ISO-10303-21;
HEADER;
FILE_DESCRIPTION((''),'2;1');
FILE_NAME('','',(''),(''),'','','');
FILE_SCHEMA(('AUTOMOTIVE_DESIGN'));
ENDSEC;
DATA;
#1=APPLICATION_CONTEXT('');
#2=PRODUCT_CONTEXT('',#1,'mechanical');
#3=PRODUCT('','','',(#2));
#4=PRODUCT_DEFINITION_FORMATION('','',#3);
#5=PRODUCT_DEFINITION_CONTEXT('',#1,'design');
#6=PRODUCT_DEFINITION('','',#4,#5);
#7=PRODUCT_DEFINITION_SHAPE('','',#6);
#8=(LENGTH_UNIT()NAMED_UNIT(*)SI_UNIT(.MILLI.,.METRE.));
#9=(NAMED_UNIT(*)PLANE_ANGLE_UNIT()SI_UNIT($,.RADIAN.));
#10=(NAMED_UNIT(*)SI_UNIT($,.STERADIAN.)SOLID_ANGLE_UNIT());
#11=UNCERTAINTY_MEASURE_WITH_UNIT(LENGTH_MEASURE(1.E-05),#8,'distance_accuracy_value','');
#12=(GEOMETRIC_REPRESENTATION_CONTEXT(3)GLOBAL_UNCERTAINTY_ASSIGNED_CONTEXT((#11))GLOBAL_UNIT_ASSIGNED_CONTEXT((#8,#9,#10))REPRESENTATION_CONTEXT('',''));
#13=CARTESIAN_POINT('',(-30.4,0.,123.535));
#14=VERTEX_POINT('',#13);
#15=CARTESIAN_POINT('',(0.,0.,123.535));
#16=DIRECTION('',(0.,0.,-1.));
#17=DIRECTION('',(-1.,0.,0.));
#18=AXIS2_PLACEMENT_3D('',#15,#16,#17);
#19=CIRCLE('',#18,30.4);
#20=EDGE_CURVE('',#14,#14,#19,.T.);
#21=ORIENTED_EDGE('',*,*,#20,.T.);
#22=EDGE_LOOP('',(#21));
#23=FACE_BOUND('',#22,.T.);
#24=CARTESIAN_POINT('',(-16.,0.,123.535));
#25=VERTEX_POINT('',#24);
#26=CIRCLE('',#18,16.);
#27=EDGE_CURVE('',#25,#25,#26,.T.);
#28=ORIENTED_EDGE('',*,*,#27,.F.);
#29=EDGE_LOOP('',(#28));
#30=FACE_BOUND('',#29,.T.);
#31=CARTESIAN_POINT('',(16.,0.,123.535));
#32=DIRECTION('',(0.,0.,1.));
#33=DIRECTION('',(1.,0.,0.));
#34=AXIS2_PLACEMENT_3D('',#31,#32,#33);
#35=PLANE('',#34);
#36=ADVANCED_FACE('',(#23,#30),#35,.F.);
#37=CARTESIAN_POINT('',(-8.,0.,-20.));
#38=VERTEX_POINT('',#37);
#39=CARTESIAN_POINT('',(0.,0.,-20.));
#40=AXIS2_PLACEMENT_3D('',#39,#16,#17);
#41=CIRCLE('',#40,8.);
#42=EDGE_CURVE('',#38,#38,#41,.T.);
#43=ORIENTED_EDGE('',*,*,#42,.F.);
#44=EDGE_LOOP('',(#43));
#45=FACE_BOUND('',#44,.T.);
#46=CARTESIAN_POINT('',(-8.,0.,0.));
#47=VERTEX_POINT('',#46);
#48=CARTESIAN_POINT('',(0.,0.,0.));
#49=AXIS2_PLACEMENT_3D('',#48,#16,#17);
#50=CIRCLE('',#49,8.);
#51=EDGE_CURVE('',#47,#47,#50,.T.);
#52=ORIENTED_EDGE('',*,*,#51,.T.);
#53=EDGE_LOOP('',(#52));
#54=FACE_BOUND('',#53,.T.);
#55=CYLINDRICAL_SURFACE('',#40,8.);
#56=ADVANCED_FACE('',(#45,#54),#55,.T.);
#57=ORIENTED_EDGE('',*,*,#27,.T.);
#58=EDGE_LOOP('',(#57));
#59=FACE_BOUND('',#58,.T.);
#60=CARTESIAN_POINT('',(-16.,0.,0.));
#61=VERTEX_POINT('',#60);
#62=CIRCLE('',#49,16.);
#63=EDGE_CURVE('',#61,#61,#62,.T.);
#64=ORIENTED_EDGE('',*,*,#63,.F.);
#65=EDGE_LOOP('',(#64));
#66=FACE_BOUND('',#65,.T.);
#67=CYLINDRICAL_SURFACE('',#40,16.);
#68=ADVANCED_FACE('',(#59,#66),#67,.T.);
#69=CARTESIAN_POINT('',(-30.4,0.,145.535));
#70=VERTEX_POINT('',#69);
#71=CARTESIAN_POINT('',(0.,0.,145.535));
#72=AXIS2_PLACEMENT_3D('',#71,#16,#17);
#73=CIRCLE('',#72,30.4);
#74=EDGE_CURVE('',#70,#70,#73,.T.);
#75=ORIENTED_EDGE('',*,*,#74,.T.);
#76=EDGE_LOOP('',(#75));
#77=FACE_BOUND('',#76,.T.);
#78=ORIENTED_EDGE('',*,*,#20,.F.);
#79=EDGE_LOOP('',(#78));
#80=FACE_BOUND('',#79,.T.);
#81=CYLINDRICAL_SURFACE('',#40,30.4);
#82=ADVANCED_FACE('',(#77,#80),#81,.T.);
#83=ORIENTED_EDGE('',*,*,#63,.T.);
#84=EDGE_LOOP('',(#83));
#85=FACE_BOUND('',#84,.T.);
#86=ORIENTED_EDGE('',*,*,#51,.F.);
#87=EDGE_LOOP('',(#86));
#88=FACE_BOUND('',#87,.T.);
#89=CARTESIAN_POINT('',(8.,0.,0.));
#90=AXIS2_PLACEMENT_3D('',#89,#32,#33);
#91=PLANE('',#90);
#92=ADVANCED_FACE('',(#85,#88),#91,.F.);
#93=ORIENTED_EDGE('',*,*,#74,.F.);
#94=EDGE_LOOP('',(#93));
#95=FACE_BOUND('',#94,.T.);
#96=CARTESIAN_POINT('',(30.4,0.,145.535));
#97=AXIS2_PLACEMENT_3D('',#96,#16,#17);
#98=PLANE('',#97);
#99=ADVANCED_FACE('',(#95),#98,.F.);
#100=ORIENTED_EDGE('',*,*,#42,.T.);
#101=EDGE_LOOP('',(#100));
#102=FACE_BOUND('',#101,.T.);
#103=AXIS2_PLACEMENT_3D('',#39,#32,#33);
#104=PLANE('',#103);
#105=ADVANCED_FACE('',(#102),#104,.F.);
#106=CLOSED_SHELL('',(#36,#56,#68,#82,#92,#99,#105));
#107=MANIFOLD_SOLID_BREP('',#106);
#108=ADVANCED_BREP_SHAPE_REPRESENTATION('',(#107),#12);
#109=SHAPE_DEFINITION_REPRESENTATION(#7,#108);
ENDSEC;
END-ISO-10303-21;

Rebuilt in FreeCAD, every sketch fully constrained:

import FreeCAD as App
import Part
import Sketcher
Q = App.Units.Quantity


def add_polygon(sketch, points):
    """Adds a closed chain of lines whose ends are joined by coincident constraints."""
    first, n = sketch.GeometryCount, len(points)
    for a, b in zip(points, points[1:] + points[:1]):
        sketch.addGeometry(Part.LineSegment(App.Vector(*a, 0), App.Vector(*b, 0)), False)
    for i in range(n):
        sketch.addConstraint(Sketcher.Constraint("Coincident", first + i, 2, first + (i + 1) % n, 1))

doc = App.newDocument("Part")
body = doc.addObject("PartDesign::Body", "Body")

# Sketch on XZ plane
sketch1 = doc.addObject("Sketcher::SketchObject", "Sketch")
body.addObject(sketch1)
sketch1.AttachmentSupport = (doc.XZ_Plane, [""])
sketch1.MapMode = "FlatFace"
add_polygon(sketch1, [(8, -20), (0, -20), (0, 146), (30, 146), (30, 124), (16, 124), (16, 0), (8, 0)])  # lines 0-7
sketch1.addConstraint([
    Sketcher.Constraint("Horizontal", 0),
    Sketcher.Constraint("Vertical", 1),
    Sketcher.Constraint("Horizontal", 2),
    Sketcher.Constraint("Vertical", 3),
    Sketcher.Constraint("Horizontal", 4),
    Sketcher.Constraint("Vertical", 5),
    Sketcher.Constraint("Horizontal", 6),
    Sketcher.Constraint("Vertical", 7),
    Sketcher.Constraint("PointOnObject", 0, 2, -2),
    Sketcher.Constraint("PointOnObject", 5, 2, -1),
    Sketcher.Constraint("Equal", 0, 6),
    Sketcher.Constraint("DistanceX", 0, 2, 0, 1, Q("8 mm")),
    Sketcher.Constraint("DistanceY", 3, 2, 3, 1, Q("22 mm")),
    Sketcher.Constraint("DistanceY", 7, 2, 7, 1, Q("20 mm")),
    Sketcher.Constraint("DistanceX", 2, 1, 2, 2, Q("30.4 mm")),
    Sketcher.Constraint("DistanceY", 1, 1, 1, 2, Q("165.535 mm")),
])
revolution = doc.addObject("PartDesign::Revolution", "Revolution")
body.addObject(revolution)
revolution.Profile = sketch1
revolution.ReferenceAxis = (sketch1, ["V_Axis"])
revolution.Angle = 360

doc.recompute()
